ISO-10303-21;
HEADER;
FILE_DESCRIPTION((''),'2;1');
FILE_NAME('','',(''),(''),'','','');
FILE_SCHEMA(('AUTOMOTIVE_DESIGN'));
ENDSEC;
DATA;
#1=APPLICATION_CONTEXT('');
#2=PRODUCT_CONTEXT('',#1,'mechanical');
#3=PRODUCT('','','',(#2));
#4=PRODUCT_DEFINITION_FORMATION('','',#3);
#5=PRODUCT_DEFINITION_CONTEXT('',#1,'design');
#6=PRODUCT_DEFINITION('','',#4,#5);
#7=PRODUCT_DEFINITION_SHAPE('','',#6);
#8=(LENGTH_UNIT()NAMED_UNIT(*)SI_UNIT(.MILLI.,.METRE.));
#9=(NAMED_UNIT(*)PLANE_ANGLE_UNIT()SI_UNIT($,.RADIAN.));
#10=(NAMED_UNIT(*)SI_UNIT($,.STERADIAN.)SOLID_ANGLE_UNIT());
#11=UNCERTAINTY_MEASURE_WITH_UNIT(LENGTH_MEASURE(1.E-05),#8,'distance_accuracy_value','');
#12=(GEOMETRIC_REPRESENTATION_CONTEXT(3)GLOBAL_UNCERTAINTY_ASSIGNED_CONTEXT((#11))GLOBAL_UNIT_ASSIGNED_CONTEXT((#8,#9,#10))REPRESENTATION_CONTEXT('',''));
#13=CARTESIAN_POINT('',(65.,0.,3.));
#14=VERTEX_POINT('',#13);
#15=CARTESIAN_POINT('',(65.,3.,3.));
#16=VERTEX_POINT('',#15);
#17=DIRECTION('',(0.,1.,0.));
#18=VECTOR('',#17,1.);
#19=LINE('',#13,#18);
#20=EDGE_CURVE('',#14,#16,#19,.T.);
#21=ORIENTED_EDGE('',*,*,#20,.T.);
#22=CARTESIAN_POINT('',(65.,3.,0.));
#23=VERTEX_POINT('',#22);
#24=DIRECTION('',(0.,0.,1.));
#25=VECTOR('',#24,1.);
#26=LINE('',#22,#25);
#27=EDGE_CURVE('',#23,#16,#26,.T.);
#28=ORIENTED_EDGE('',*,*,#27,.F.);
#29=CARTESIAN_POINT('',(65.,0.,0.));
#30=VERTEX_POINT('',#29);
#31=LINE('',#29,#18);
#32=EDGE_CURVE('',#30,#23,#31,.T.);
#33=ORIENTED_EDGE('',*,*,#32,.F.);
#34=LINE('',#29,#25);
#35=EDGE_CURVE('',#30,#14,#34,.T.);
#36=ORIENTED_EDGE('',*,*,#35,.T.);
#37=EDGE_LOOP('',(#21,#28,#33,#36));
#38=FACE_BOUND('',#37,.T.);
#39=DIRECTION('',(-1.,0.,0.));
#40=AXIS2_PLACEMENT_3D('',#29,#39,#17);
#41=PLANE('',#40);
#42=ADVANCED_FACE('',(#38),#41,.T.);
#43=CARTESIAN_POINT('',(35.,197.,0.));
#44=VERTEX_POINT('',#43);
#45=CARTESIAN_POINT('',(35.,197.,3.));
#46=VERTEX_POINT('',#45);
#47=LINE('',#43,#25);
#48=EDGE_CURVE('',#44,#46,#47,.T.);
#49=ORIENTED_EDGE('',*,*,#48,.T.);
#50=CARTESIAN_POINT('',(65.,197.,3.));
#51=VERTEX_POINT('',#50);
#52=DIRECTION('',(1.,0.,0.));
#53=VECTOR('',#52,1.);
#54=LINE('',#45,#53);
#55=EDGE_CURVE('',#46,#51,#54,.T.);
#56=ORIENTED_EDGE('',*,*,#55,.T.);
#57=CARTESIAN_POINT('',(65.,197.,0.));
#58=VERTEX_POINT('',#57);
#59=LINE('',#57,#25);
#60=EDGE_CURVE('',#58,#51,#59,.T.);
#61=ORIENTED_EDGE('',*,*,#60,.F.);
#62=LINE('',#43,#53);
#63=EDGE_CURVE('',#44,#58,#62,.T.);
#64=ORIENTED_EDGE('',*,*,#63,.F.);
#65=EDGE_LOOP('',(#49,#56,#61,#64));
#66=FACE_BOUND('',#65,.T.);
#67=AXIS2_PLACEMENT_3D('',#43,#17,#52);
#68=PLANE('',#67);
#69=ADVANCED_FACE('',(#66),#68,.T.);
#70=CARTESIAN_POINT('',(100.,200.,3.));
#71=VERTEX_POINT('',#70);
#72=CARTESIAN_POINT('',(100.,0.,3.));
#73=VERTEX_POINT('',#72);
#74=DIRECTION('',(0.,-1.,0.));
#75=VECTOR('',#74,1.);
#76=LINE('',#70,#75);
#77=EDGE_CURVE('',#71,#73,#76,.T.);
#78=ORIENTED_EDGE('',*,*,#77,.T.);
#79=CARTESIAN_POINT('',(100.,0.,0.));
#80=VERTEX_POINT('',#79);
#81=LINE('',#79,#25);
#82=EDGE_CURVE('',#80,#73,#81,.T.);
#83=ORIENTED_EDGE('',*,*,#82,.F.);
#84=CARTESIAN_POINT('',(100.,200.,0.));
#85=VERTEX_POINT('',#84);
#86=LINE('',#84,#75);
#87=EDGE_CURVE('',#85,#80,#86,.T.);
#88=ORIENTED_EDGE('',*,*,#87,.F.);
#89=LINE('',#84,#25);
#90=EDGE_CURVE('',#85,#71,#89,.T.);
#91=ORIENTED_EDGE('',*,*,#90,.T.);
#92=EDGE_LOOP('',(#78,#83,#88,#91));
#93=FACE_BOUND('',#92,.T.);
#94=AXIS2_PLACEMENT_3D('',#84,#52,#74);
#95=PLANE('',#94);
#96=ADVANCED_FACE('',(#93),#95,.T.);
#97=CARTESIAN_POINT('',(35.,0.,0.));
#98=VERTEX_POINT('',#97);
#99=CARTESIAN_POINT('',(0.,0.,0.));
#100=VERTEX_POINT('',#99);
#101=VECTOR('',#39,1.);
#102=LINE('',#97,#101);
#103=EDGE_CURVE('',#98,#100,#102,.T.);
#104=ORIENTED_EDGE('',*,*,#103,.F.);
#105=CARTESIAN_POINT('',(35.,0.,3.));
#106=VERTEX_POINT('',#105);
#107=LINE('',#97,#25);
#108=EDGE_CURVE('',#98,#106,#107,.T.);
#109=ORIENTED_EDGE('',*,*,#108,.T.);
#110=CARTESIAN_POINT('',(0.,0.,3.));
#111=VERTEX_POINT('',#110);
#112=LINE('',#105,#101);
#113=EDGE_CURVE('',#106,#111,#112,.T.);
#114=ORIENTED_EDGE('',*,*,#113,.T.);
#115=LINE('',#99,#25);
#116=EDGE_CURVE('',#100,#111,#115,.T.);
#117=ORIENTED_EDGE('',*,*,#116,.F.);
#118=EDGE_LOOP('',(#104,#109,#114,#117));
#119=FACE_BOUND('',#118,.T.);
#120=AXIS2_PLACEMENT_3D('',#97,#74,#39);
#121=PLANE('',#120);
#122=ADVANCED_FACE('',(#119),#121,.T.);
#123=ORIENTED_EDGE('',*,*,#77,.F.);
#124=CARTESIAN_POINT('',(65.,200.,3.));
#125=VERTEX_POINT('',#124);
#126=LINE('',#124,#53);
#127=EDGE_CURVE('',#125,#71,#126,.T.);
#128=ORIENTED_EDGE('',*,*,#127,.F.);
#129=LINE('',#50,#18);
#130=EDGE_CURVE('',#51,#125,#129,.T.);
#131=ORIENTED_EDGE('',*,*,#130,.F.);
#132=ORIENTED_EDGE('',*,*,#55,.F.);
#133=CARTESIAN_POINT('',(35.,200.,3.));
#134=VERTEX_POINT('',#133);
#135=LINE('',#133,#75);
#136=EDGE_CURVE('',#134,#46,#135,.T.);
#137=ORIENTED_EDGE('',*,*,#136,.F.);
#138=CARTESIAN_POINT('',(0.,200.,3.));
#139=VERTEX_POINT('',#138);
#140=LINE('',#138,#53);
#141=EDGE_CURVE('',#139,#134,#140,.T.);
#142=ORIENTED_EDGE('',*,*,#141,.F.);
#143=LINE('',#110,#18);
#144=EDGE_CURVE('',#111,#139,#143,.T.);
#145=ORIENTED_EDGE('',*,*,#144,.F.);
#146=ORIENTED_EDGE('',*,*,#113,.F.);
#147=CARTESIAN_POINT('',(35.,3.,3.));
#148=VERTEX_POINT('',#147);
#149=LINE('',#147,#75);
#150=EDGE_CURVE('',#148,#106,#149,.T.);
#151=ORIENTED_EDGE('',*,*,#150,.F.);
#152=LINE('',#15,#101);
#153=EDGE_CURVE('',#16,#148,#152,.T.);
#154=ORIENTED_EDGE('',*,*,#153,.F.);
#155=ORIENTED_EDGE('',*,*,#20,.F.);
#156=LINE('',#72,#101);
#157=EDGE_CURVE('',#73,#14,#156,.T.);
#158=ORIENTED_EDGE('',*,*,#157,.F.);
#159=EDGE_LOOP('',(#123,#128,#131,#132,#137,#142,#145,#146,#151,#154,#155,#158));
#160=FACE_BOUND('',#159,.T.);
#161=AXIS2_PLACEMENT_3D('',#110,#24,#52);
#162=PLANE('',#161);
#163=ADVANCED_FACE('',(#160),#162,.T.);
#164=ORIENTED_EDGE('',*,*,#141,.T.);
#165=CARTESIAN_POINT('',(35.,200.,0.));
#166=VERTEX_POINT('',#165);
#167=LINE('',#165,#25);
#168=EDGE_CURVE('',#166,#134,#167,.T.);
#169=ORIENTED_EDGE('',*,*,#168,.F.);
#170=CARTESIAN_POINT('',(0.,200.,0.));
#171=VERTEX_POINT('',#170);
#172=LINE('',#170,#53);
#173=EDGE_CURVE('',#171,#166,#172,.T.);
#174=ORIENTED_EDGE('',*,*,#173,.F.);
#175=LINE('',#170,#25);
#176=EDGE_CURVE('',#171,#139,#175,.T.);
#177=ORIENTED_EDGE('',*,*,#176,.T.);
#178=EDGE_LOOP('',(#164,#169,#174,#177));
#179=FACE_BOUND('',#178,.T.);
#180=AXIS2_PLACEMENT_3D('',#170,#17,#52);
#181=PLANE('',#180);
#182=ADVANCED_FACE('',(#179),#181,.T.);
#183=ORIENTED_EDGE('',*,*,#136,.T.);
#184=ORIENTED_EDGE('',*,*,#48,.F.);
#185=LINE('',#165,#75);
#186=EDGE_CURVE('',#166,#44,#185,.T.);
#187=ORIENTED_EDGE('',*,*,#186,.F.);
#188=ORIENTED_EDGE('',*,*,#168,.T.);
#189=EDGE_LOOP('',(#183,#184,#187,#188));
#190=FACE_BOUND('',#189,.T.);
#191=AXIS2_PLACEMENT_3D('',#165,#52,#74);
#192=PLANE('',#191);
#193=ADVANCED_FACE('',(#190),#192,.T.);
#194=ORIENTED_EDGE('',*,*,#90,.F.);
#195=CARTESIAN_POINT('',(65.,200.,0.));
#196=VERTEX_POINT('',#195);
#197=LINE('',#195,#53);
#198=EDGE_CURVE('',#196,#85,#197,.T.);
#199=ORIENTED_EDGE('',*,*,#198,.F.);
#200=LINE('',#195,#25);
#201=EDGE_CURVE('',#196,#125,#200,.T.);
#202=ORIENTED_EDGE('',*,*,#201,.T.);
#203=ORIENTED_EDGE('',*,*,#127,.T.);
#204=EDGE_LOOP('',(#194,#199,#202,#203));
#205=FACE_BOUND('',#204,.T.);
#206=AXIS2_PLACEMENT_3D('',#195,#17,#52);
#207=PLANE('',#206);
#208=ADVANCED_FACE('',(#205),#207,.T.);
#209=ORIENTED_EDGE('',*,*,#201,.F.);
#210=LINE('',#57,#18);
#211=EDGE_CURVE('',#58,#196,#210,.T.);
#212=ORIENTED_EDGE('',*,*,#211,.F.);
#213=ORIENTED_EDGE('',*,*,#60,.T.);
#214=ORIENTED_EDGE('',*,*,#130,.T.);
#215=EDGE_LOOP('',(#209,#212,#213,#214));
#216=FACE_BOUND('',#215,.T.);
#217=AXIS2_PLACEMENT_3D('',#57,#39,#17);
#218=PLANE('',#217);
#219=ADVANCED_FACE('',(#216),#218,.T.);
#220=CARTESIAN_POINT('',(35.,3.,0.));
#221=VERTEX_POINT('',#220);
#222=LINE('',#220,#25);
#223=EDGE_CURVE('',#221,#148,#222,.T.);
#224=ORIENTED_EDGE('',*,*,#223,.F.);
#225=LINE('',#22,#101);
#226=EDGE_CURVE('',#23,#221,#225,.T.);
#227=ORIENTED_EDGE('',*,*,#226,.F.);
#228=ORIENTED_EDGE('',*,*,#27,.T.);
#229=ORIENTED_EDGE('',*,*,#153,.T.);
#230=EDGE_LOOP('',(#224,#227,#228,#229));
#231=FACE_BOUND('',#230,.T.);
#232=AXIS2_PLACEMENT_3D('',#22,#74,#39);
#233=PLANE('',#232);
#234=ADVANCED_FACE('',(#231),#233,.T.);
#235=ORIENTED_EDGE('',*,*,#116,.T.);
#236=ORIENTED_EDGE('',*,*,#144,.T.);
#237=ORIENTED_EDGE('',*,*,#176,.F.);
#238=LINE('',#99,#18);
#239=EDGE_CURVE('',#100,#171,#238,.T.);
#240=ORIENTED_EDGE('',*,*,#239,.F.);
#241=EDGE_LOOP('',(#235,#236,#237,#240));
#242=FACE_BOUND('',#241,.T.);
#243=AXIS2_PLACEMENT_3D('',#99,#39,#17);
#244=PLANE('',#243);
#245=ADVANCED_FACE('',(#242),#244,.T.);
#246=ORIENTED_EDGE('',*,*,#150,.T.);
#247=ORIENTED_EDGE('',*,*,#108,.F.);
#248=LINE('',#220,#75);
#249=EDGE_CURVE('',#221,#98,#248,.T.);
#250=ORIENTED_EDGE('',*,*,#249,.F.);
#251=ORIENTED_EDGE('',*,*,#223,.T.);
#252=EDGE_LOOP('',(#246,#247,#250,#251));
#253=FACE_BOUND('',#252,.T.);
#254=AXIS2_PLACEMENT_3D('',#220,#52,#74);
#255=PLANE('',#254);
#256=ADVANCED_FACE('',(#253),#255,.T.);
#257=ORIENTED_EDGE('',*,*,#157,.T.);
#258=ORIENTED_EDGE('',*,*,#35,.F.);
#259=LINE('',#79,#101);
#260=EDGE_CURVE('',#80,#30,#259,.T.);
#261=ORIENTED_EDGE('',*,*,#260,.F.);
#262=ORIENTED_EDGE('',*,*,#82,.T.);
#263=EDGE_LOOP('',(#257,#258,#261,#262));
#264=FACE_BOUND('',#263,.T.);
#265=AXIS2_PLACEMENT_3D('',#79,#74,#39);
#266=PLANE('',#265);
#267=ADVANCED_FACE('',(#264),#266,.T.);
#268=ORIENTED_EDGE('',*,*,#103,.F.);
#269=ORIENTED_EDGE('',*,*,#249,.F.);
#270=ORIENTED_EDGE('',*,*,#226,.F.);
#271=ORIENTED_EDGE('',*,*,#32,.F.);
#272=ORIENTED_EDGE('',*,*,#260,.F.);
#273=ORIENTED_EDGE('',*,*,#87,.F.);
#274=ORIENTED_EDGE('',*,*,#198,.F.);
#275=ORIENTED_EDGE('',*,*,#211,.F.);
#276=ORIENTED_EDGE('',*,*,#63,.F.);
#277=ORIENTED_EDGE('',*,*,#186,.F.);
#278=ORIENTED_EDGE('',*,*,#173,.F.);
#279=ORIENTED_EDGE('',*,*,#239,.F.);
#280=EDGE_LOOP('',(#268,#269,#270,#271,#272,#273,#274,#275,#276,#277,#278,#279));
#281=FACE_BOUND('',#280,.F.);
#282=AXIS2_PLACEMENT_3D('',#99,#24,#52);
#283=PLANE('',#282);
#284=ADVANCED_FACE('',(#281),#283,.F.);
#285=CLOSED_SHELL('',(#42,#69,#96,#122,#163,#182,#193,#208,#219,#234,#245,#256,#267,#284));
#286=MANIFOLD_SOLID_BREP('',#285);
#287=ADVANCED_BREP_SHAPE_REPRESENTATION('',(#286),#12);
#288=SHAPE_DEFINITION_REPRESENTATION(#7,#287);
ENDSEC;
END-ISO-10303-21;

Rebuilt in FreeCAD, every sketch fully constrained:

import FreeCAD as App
import Part
import Sketcher


def add_polygon(sketch, points):
    """Adds a closed chain of lines whose ends are joined by coincident constraints."""
    first, n = sketch.GeometryCount, len(points)
    for a, b in zip(points, points[1:] + points[:1]):
        sketch.addGeometry(Part.LineSegment(App.Vector(*a, 0), App.Vector(*b, 0)), False)
    for i in range(n):
        sketch.addConstraint(Sketcher.Constraint("Coincident", first + i, 2, first + (i + 1) % n, 1))

doc = App.newDocument("Part")
body = doc.addObject("PartDesign::Body", "Body")

sketch1 = doc.addObject("Sketcher::SketchObject", "Sketch")
body.addObject(sketch1)
sketch1.AttachmentSupport = (doc.XY_Plane, [""])
sketch1.MapMode = "FlatFace"
add_polygon(sketch1, [(0, 200), (0, 0), (35, 0), (35, 3), (65, 3), (65, 0), (100, 0), (100, 200), (65, 200), (65, 197), (35, 197), (35, 200)])
sketch1.addConstraint([
    Sketcher.Constraint("Vertical", 0),
    Sketcher.Constraint("Horizontal", 1),
    Sketcher.Constraint("Vertical", 2),
    Sketcher.Constraint("Horizontal", 3),
    Sketcher.Constraint("Vertical", 4),
    Sketcher.Constraint("Horizontal", 5),
    Sketcher.Constraint("Vertical", 6),
    Sketcher.Constraint("Horizontal", 7),
    Sketcher.Constraint("Vertical", 8),
    Sketcher.Constraint("Horizontal", 9),
    Sketcher.Constraint("Vertical", 10),
    Sketcher.Constraint("Horizontal", 11),
    Sketcher.Constraint("Coincident", 0, 2, -1, 1),
    Sketcher.Constraint("PointOnObject", 4, 2, -1),
    Sketcher.Constraint("Horizontal", 7, 2, 10, 2),
    Sketcher.Constraint("Vertical", 4, 2, 7, 2),
    Sketcher.Constraint("Vertical", 2, 2, 9, 2),
    Sketcher.Constraint("Equal", 1, 5),
    Sketcher.Constraint("Equal", 4, 8),
    Sketcher.Constraint("DistanceX", 1, 1, 1, 2, 35.0),
    Sketcher.Constraint("DistanceX", 3, 1, 3, 2, 30.0),
    Sketcher.Constraint("DistanceY", 0, 2, 0, 1, 200.0),
    Sketcher.Constraint("DistanceY", 2, 1, 2, 2, 3.0),
])
pad1 = doc.addObject("PartDesign::Pad", "Pad")
body.addObject(pad1)
pad1.Profile = sketch1
pad1.Length = 3

doc.recompute()
